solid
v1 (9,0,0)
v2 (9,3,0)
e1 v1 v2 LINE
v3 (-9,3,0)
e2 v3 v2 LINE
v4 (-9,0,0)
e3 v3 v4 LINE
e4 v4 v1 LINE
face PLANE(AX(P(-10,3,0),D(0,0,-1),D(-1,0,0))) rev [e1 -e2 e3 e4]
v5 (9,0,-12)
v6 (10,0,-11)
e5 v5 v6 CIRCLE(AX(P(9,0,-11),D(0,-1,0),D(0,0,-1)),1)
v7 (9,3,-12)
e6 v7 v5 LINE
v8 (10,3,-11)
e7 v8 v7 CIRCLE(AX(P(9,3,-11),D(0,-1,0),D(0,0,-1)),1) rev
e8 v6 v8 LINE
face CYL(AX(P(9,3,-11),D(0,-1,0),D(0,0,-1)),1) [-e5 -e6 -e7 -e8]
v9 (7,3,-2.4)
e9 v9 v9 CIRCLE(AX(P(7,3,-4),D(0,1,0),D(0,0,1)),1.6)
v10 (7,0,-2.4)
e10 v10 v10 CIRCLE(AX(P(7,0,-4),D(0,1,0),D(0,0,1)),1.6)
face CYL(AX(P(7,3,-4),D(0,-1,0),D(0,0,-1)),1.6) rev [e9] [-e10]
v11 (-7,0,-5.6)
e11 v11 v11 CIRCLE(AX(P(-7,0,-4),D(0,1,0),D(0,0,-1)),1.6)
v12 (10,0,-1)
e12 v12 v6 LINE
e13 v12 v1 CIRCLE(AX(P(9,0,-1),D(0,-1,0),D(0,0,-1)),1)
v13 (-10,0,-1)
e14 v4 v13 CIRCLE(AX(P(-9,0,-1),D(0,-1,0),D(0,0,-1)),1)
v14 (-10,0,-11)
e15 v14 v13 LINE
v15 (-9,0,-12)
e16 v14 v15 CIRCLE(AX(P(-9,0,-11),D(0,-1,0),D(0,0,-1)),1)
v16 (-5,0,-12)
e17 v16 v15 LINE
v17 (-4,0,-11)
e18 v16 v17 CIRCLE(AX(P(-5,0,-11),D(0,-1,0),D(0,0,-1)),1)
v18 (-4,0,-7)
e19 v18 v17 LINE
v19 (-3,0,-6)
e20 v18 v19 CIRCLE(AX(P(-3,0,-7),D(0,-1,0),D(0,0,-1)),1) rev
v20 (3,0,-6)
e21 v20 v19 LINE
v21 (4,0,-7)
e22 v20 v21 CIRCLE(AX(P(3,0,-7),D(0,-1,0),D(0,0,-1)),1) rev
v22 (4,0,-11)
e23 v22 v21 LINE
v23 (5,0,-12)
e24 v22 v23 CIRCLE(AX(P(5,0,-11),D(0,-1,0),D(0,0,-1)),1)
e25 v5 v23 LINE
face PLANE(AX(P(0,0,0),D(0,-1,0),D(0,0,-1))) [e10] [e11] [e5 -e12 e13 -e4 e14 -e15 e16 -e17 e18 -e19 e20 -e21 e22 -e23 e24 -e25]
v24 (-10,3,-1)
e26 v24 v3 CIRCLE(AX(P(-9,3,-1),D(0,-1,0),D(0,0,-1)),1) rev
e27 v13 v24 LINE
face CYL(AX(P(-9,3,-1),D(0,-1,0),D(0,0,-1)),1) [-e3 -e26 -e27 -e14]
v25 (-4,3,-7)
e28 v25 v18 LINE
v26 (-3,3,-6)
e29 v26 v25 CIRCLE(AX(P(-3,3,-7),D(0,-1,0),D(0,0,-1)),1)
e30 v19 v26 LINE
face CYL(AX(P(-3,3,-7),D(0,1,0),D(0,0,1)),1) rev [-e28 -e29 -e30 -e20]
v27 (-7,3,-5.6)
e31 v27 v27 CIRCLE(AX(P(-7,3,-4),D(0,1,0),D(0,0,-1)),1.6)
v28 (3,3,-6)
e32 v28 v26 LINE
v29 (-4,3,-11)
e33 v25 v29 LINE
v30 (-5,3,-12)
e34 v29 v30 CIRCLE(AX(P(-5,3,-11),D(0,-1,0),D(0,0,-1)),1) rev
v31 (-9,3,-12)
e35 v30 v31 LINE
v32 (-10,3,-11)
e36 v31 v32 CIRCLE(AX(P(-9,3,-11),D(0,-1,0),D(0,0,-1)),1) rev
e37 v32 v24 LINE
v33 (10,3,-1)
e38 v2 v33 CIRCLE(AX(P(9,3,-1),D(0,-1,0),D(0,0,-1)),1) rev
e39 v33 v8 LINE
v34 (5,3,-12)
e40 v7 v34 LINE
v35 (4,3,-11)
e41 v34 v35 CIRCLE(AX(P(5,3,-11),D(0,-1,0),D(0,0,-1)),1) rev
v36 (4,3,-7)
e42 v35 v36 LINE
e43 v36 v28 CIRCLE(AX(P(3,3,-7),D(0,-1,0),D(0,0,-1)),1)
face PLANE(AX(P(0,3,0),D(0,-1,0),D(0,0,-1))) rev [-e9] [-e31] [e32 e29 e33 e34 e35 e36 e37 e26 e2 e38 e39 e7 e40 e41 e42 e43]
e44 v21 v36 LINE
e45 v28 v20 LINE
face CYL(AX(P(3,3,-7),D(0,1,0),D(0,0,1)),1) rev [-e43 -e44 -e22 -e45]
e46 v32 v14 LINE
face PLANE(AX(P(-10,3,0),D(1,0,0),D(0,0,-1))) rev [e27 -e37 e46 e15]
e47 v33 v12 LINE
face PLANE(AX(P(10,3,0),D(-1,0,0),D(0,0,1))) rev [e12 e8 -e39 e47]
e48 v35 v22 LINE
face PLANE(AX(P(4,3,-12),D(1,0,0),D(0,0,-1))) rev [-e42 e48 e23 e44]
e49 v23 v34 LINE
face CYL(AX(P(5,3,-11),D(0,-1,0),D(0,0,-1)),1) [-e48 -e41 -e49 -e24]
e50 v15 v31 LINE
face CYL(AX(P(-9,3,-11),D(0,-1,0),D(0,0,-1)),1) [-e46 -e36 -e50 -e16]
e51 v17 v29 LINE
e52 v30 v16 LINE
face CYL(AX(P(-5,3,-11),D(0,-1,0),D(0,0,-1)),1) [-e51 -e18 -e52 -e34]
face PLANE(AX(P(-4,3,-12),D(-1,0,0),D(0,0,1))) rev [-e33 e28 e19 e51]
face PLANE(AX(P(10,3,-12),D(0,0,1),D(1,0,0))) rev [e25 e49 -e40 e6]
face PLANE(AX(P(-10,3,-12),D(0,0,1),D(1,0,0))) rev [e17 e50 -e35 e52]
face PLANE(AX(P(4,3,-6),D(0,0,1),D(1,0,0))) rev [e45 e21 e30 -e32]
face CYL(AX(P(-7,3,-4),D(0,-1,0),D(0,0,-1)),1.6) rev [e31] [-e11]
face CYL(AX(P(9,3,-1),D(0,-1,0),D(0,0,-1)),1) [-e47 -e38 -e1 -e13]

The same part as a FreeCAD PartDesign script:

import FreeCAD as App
import Part
import Sketcher
from FreeCAD import Vector
Q = App.Units.Quantity


def edges_at(feature, points):
    """Names of the edges that pass closest to the given points."""
    edges = feature.Shape.Edges
    near = lambda p: min(range(len(edges)), key=lambda i: edges[i].distToShape(Part.Vertex(*p))[0])
    return sorted({f"Edge{near(p) + 1}" for p in points})


def add_polygon(sketch, points):
    """Adds a closed chain of lines whose ends are joined by coincident constraints."""
    first, n = sketch.GeometryCount, len(points)
    for a, b in zip(points, points[1:] + points[:1]):
        sketch.addGeometry(Part.LineSegment(App.Vector(*a, 0), App.Vector(*b, 0)), False)
    for i in range(n):
        sketch.addConstraint(Sketcher.Constraint("Coincident", first + i, 2, first + (i + 1) % n, 1))

doc = App.newDocument("Part")
body = doc.addObject("PartDesign::Body", "Body")

# Sketch on XZ plane
sketch1 = body.newObject("Sketcher::SketchObject", "Sketch")
sketch1.AttachmentSupport = (doc.getObject("XZ_Plane"), [""])
sketch1.MapMode = "FlatFace"
add_polygon(sketch1, [(-10, 0), (10, 0), (10, -12), (4, -12), (4, -6), (-4, -6), (-4, -12), (-10, -12)])  # lines 0-7
sketch1.addGeometry(Part.Circle(Vector(-7, -4, 0), Vector(0, 0, 1), 1.6), False)  # 8
sketch1.addGeometry(Part.Circle(Vector(7, -4, 0), Vector(0, 0, 1), 1.6), False)  # 9
sketch1.addConstraint(Sketcher.Constraint("Horizontal", 0))
sketch1.addConstraint(Sketcher.Constraint("Vertical", 1))
sketch1.addConstraint(Sketcher.Constraint("Horizontal", 2))
sketch1.addConstraint(Sketcher.Constraint("Vertical", 3))
sketch1.addConstraint(Sketcher.Constraint("Horizontal", 4))
sketch1.addConstraint(Sketcher.Constraint("Vertical", 5))
sketch1.addConstraint(Sketcher.Constraint("Horizontal", 6))
sketch1.addConstraint(Sketcher.Constraint("Vertical", 7))
sketch1.addConstraint(Sketcher.Constraint("Equal", 8, 9))
sketch1.addConstraint(Sketcher.Constraint("Symmetric", 0, 2, 7, 2, -1, 1))
sketch1.addConstraint(Sketcher.Constraint("Symmetric", 8, 3, 9, 3, -2))
sketch1.addConstraint(Sketcher.Constraint("Symmetric", 2, 2, 5, 2, -2))
sketch1.addConstraint(Sketcher.Constraint("Equal", 6, 3))
sketch1.addConstraint(Sketcher.Constraint("Diameter", 8, Q("3.2 mm")))
sketch1.addConstraint(Sketcher.Constraint("DistanceX", 0, 1, 0, 2, Q("20 mm")))
sketch1.addConstraint(Sketcher.Constraint("DistanceX", 2, 2, 2, 1, Q("6 mm")))
sketch1.addConstraint(Sketcher.Constraint("DistanceY", 1, 2, 1, 1, Q("12 mm")))
sketch1.addConstraint(Sketcher.Constraint("DistanceX", 8, 3, -1, 1, Q("7 mm")))
sketch1.addConstraint(Sketcher.Constraint("DistanceY", 8, 3, -1, 1, Q("4 mm")))
pad1 = body.newObject("PartDesign::Pad", "Pad")
pad1.Profile = sketch1
pad1.Length = 3
pad1.Reversed = True
doc.recompute()

fillet = body.newObject("PartDesign::Fillet", "Fillet")
fillet.Base = (pad1, edges_at(pad1, [
    (-4, 1.5, -12),
    (-4, 1.5, -6),
    (4, 1.5, -6),
    (4, 1.5, -12),
    (10, 1.5, -12),
    (10, 1.5, 0),
    (-10, 1.5, 0),
    (-10, 1.5, -12),
]))
fillet.Radius = 1

doc.recompute()
